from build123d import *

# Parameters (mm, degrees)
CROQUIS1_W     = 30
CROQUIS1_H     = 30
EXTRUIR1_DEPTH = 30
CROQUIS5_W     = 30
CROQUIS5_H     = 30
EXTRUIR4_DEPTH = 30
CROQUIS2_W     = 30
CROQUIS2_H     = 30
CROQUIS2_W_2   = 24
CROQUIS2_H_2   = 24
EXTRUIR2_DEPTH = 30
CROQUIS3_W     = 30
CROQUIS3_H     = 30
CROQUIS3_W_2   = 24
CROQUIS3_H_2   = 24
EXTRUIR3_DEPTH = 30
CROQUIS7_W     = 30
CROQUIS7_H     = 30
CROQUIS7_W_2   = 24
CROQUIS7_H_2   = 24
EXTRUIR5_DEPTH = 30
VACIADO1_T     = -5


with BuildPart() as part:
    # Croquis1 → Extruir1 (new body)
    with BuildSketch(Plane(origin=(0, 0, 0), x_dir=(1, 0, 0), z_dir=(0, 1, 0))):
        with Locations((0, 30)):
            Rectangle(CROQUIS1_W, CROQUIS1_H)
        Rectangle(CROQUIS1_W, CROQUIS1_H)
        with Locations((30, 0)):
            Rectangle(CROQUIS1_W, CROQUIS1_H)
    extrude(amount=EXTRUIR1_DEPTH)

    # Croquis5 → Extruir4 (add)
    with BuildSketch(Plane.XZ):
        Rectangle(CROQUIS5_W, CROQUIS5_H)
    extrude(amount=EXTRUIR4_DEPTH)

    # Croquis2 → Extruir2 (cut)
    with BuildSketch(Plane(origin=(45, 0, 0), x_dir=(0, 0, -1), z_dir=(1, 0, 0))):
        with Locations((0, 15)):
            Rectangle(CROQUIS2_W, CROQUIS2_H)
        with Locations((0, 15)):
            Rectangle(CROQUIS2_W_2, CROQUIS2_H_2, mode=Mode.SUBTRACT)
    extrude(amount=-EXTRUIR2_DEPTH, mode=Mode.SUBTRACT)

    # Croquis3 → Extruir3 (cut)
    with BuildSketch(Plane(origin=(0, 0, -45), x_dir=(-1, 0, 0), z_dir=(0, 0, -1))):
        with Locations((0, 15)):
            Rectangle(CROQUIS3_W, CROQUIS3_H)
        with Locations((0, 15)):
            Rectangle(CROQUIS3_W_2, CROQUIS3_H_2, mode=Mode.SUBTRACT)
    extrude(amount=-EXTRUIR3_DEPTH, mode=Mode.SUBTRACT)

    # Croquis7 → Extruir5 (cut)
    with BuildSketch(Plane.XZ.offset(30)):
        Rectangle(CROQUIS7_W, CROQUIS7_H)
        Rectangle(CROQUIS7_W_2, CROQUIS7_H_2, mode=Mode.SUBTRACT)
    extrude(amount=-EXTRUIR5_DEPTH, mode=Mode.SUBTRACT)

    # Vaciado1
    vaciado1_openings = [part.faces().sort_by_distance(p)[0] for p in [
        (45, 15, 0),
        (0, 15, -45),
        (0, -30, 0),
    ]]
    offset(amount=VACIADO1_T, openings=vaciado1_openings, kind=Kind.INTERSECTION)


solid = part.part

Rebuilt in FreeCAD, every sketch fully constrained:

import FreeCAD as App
import Part
import Sketcher


def faces_at(feature, points):
    """Names of the faces that lie closest to the given points."""
    faces = feature.Shape.Faces
    near = lambda p: min(range(len(faces)), key=lambda i: faces[i].distToShape(Part.Vertex(*p))[0])
    return sorted({f"Face{near(p) + 1}" for p in points})

doc = App.newDocument("Part")
body = doc.addObject("PartDesign::Body", "Body")

sketch1 = body.newObject("Sketcher::SketchObject", "Sketch")
sketch1.AttachmentSupport = (doc.getObject("XZ_Plane"), [""])
sketch1.MapMode = "FlatFace"
sketch1.addGeometry([
    Part.LineSegment(App.Vector(-15, -45, 0), App.Vector(-15, 15, 0)),
    Part.LineSegment(App.Vector(-15, 15, 0), App.Vector(45, 15, 0)),
    Part.LineSegment(App.Vector(45, 15, 0), App.Vector(45, -15, 0)),
    Part.LineSegment(App.Vector(45, -15, 0), App.Vector(15, -15, 0)),
    Part.LineSegment(App.Vector(15, -15, 0), App.Vector(15, -45, 0)),
    Part.LineSegment(App.Vector(15, -45, 0), App.Vector(-15, -45, 0)),
], False)
sketch1.addConstraint([
    Sketcher.Constraint("Coincident", 0, 2, 1, 1),
    Sketcher.Constraint("Coincident", 1, 2, 2, 1),
    Sketcher.Constraint("Coincident", 2, 2, 3, 1),
    Sketcher.Constraint("Coincident", 3, 2, 4, 1),
    Sketcher.Constraint("Coincident", 4, 2, 5, 1),
    Sketcher.Constraint("Coincident", 5, 2, 0, 1),
    Sketcher.Constraint("Vertical", 0),
    Sketcher.Constraint("Horizontal", 1),
    Sketcher.Constraint("Vertical", 2),
    Sketcher.Constraint("Horizontal", 3),
    Sketcher.Constraint("Vertical", 4),
    Sketcher.Constraint("Horizontal", 5),
    Sketcher.Constraint("Symmetric", 0, 2, 3, 2, -1, 1),
    Sketcher.Constraint("Equal", 3, 5),
    Sketcher.Constraint("Equal", 1, 0),
    Sketcher.Constraint("Equal", 5, 2),
    Sketcher.Constraint("DistanceX", 1, 1, 1, 2, 60.0),
])
pad1 = body.newObject("PartDesign::Pad", "Pad")
pad1.Profile = sketch1
pad1.Length = 30
pad1.Reversed = True

sketch2 = body.newObject("Sketcher::SketchObject", "Sketch001")
sketch2.AttachmentSupport = (doc.getObject("XZ_Plane"), [""])
sketch2.MapMode = "FlatFace"
sketch2.addGeometry([
    Part.LineSegment(App.Vector(-15, 15, 0), App.Vector(-15, -15, 0)),
    Part.LineSegment(App.Vector(-15, -15, 0), App.Vector(15, -15, 0)),
    Part.LineSegment(App.Vector(15, -15, 0), App.Vector(15, 15, 0)),
    Part.LineSegment(App.Vector(15, 15, 0), App.Vector(-15, 15, 0)),
], False)
sketch2.addConstraint([
    Sketcher.Constraint("Coincident", 0, 2, 1, 1),
    Sketcher.Constraint("Coincident", 1, 2, 2, 1),
    Sketcher.Constraint("Coincident", 2, 2, 3, 1),
    Sketcher.Constraint("Coincident", 3, 2, 0, 1),
    Sketcher.Constraint("Vertical", 0),
    Sketcher.Constraint("Horizontal", 1),
    Sketcher.Constraint("Vertical", 2),
    Sketcher.Constraint("Horizontal", 3),
    Sketcher.Constraint("Symmetric", 0, 2, 2, 2, -1, 1),
    Sketcher.Constraint("Equal", 3, 0),
    Sketcher.Constraint("DistanceX", 1, 1, 1, 2, 30.0),
])
pad2 = body.newObject("PartDesign::Pad", "Pad001")
pad2.Profile = sketch2
pad2.Length = 30

sketch3 = body.newObject("Sketcher::SketchObject", "Sketch002")
sketch3.AttachmentSupport = (doc.getObject("YZ_Plane"), [""])
sketch3.MapMode = "FlatFace"
sketch3.AttachmentOffset = App.Placement(App.Vector(0, 0, 45), App.Rotation())
sketch3.addGeometry([
    Part.LineSegment(App.Vector(30, 15, 0), App.Vector(0, 15, 0)),
    Part.LineSegment(App.Vector(0, 15, 0), App.Vector(0, -15, 0)),
    Part.LineSegment(App.Vector(0, -15, 0), App.Vector(30, -15, 0)),
    Part.LineSegment(App.Vector(30, -15, 0), App.Vector(30, 15, 0)),
    Part.LineSegment(App.Vector(3, -12, 0), App.Vector(3, 12, 0)),
    Part.LineSegment(App.Vector(3, 12, 0), App.Vector(27, 12, 0)),
    Part.LineSegment(App.Vector(27, 12, 0), App.Vector(27, -12, 0)),
    Part.LineSegment(App.Vector(27, -12, 0), App.Vector(3, -12, 0)),
], False)
sketch3.addConstraint([
    Sketcher.Constraint("Coincident", 0, 2, 1, 1),
    Sketcher.Constraint("Coincident", 1, 2, 2, 1),
    Sketcher.Constraint("Coincident", 2, 2, 3, 1),
    Sketcher.Constraint("Coincident", 3, 2, 0, 1),
    Sketcher.Constraint("Coincident", 4, 2, 5, 1),
    Sketcher.Constraint("Coincident", 5, 2, 6, 1),
    Sketcher.Constraint("Coincident", 6, 2, 7, 1),
    Sketcher.Constraint("Coincident", 7, 2, 4, 1),
    Sketcher.Constraint("Horizontal", 0),
    Sketcher.Constraint("Vertical", 1),
    Sketcher.Constraint("Horizontal", 2),
    Sketcher.Constraint("Vertical", 3),
    Sketcher.Constraint("Vertical", 4),
    Sketcher.Constraint("Horizontal", 5),
    Sketcher.Constraint("Vertical", 6),
    Sketcher.Constraint("Horizontal", 7),
    Sketcher.Constraint("Symmetric", 0, 2, 1, 2, -1, 1),
    Sketcher.Constraint("Equal", 2, 1),
    Sketcher.Constraint("Equal", 7, 4),
    Sketcher.Constraint("DistanceX", 0, 2, 0, 1, 30.0),
    Sketcher.Constraint("DistanceX", 5, 1, 5, 2, 24.0),
    Sketcher.Constraint("DistanceX", -1, 1, 4, 2, 3.0),
    Sketcher.Constraint("DistanceY", -1, 1, 4, 2, 12.0),
])
pocket1 = body.newObject("PartDesign::Pocket", "Pocket")
pocket1.Profile = sketch3
pocket1.Length = 30

sketch4 = body.newObject("Sketcher::SketchObject", "Sketch003")
sketch4.AttachmentSupport = (doc.getObject("XY_Plane"), [""])
sketch4.MapMode = "FlatFace"
sketch4.AttachmentOffset = App.Placement(App.Vector(0, 0, -45), App.Rotation())
sketch4.addGeometry([
    Part.LineSegment(App.Vector(15, 30, 0), App.Vector(15, 0, 0)),
    Part.LineSegment(App.Vector(15, 0, 0), App.Vector(-15, 0, 0)),
    Part.LineSegment(App.Vector(-15, 0, 0), App.Vector(-15, 30, 0)),
    Part.LineSegment(App.Vector(-15, 30, 0), App.Vector(15, 30, 0)),
    Part.LineSegment(App.Vector(-12, 3, 0), App.Vector(12, 3, 0)),
    Part.LineSegment(App.Vector(12, 3, 0), App.Vector(12, 27, 0)),
    Part.LineSegment(App.Vector(12, 27, 0), App.Vector(-12, 27, 0)),
    Part.LineSegment(App.Vector(-12, 27, 0), App.Vector(-12, 3, 0)),
], False)
sketch4.addConstraint([
    Sketcher.Constraint("Coincident", 0, 2, 1, 1),
    Sketcher.Constraint("Coincident", 1, 2, 2, 1),
    Sketcher.Constraint("Coincident", 2, 2, 3, 1),
    Sketcher.Constraint("Coincident", 3, 2, 0, 1),
    Sketcher.Constraint("Coincident", 4, 2, 5, 1),
    Sketcher.Constraint("Coincident", 5, 2, 6, 1),
    Sketcher.Constraint("Coincident", 6, 2, 7, 1),
    Sketcher.Constraint("Coincident", 7, 2, 4, 1),
    Sketcher.Constraint("Vertical", 0),
    Sketcher.Constraint("Horizontal", 1),
    Sketcher.Constraint("Vertical", 2),
    Sketcher.Constraint("Horizontal", 3),
    Sketcher.Constraint("Horizontal", 4),
    Sketcher.Constraint("Vertical", 5),
    Sketcher.Constraint("Horizontal", 6),
    Sketcher.Constraint("Vertical", 7),
    Sketcher.Constraint("Symmetric", 0, 2, 1, 2, -1, 1),
    Sketcher.Constraint("Equal", 3, 0),
    Sketcher.Constraint("Equal", 6, 5),
    Sketcher.Constraint("DistanceX", 1, 2, 1, 1, 30.0),
    Sketcher.Constraint("DistanceX", 4, 1, 4, 2, 24.0),
    Sketcher.Constraint("DistanceX", -1, 1, 4, 2, 12.0),
    Sketcher.Constraint("DistanceY", -1, 1, 4, 2, 3.0),
])
pocket2 = body.newObject("PartDesign::Pocket", "Pocket001")
pocket2.Profile = sketch4
pocket2.Length = 30
pocket2.Reversed = True

sketch5 = body.newObject("Sketcher::SketchObject", "Sketch004")
sketch5.AttachmentSupport = (doc.getObject("XZ_Plane"), [""])
sketch5.MapMode = "FlatFace"
sketch5.AttachmentOffset = App.Placement(App.Vector(0, 0, 30), App.Rotation())
sketch5.addGeometry([
    Part.LineSegment(App.Vector(-15, 15, 0), App.Vector(-15, -15, 0)),
    Part.LineSegment(App.Vector(-15, -15, 0), App.Vector(15, -15, 0)),
    Part.LineSegment(App.Vector(15, -15, 0), App.Vector(15, 15, 0)),
    Part.LineSegment(App.Vector(15, 15, 0), App.Vector(-15, 15, 0)),
    Part.LineSegment(App.Vector(12, -12, 0), App.Vector(-12, -12, 0)),
    Part.LineSegment(App.Vector(-12, -12, 0), App.Vector(-12, 12, 0)),
    Part.LineSegment(App.Vector(-12, 12, 0), App.Vector(12, 12, 0)),
    Part.LineSegment(App.Vector(12, 12, 0), App.Vector(12, -12, 0)),
], False)
sketch5.addConstraint([
    Sketcher.Constraint("Coincident", 0, 2, 1, 1),
    Sketcher.Constraint("Coincident", 1, 2, 2, 1),
    Sketcher.Constraint("Coincident", 2, 2, 3, 1),
    Sketcher.Constraint("Coincident", 3, 2, 0, 1),
    Sketcher.Constraint("Coincident", 4, 2, 5, 1),
    Sketcher.Constraint("Coincident", 5, 2, 6, 1),
    Sketcher.Constraint("Coincident", 6, 2, 7, 1),
    Sketcher.Constraint("Coincident", 7, 2, 4, 1),
    Sketcher.Constraint("Vertical", 0),
    Sketcher.Constraint("Horizontal", 1),
    Sketcher.Constraint("Vertical", 2),
    Sketcher.Constraint("Horizontal", 3),
    Sketcher.Constraint("Horizontal", 4),
    Sketcher.Constraint("Vertical", 5),
    Sketcher.Constraint("Horizontal", 6),
    Sketcher.Constraint("Vertical", 7),
    Sketcher.Constraint("Symmetric", 0, 2, 2, 2, -1, 1),
    Sketcher.Constraint("Symmetric", 4, 2, 6, 2, -1, 1),
    Sketcher.Constraint("Equal", 3, 0),
    Sketcher.Constraint("Equal", 6, 5),
    Sketcher.Constraint("DistanceX", 1, 1, 1, 2, 30.0),
    Sketcher.Constraint("DistanceX", 4, 2, 4, 1, 24.0),
])
pocket3 = body.newObject("PartDesign::Pocket", "Pocket002")
pocket3.Profile = sketch5
pocket3.Length = 30
doc.recompute()

thickness = body.newObject("PartDesign::Thickness", "Thickness")
thickness.Base = (pocket3, faces_at(pocket3, [(45, 15, 0), (0, 15, -45), (0, -30, 0)]))
thickness.Value = 5
thickness.Reversed = True
thickness.Join = "Intersection"

doc.recompute()
